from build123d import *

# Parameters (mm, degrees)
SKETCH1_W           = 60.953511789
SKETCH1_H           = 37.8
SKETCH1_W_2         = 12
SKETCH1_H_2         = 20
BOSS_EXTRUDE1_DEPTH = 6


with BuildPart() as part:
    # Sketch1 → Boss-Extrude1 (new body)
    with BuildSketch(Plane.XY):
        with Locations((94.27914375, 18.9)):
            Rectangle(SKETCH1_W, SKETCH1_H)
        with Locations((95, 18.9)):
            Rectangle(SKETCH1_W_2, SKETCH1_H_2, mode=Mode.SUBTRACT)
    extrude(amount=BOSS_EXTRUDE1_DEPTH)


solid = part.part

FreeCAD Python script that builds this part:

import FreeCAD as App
import Part
import Sketcher
from FreeCAD import Vector

doc = App.newDocument("Part")
body = doc.addObject("PartDesign::Body", "Body")

# Sketch on XY plane
sketch1 = doc.addObject("Sketcher::SketchObject", "Sketch")
body.addObject(sketch1)
sketch1.AttachmentSupport = (doc.XY_Plane, [""])
sketch1.MapMode = "FlatFace"
sketch1.addGeometry(Part.LineSegment(Vector(63.802388, 37.8, 0), Vector(63.802388, 0, 0)), False)
sketch1.addGeometry(Part.LineSegment(Vector(63.802388, 0, 0), Vector(124.7559, 0, 0)), False)
sketch1.addGeometry(Part.LineSegment(Vector(124.7559, 0, 0), Vector(124.7559, 37.8, 0)), False)
sketch1.addGeometry(Part.LineSegment(Vector(124.7559, 37.8, 0), Vector(63.802388, 37.8, 0)), False)
sketch1.addGeometry(Part.LineSegment(Vector(101, 8.9, 0), Vector(89, 8.9, 0)), False)
sketch1.addGeometry(Part.LineSegment(Vector(89, 8.9, 0), Vector(89, 28.9, 0)), False)
sketch1.addGeometry(Part.LineSegment(Vector(89, 28.9, 0), Vector(101, 28.9, 0)), False)
sketch1.addGeometry(Part.LineSegment(Vector(101, 28.9, 0), Vector(101, 8.9, 0)), False)
sketch1.addConstraint(Sketcher.Constraint("Coincident", 0, 2, 1, 1))
sketch1.addConstraint(Sketcher.Constraint("Coincident", 1, 2, 2, 1))
sketch1.addConstraint(Sketcher.Constraint("Coincident", 2, 2, 3, 1))
sketch1.addConstraint(Sketcher.Constraint("Coincident", 3, 2, 0, 1))
sketch1.addConstraint(Sketcher.Constraint("Coincident", 4, 2, 5, 1))
sketch1.addConstraint(Sketcher.Constraint("Coincident", 5, 2, 6, 1))
sketch1.addConstraint(Sketcher.Constraint("Coincident", 6, 2, 7, 1))
sketch1.addConstraint(Sketcher.Constraint("Coincident", 7, 2, 4, 1))
sketch1.addConstraint(Sketcher.Constraint("Vertical", 0))
sketch1.addConstraint(Sketcher.Constraint("Horizontal", 1))
sketch1.addConstraint(Sketcher.Constraint("Vertical", 2))
sketch1.addConstraint(Sketcher.Constraint("Horizontal", 3))
sketch1.addConstraint(Sketcher.Constraint("Horizontal", 4))
sketch1.addConstraint(Sketcher.Constraint("Vertical", 5))
sketch1.addConstraint(Sketcher.Constraint("Horizontal", 6))
sketch1.addConstraint(Sketcher.Constraint("Vertical", 7))
sketch1.addConstraint(Sketcher.Constraint("PointOnObject", 0, 2, -1))
sketch1.addConstraint(Sketcher.Constraint("DistanceX", 4, 2, 4, 1, 12.0))
sketch1.addConstraint(Sketcher.Constraint("DistanceY", 5, 1, 5, 2, 20.0))
sketch1.addConstraint(Sketcher.Constraint("DistanceY", 0, 2, 0, 1, 37.8))
sketch1.addConstraint(Sketcher.Constraint("DistanceX", -1, 1, 4, 2, 89.0))
sketch1.addConstraint(Sketcher.Constraint("DistanceY", -1, 1, 4, 2, 8.9))
sketch1.addConstraint(Sketcher.Constraint("DistanceX", 1, 1, 1, 2, 60.953512))
sketch1.addConstraint(Sketcher.Constraint("DistanceX", -1, 1, 1, 2, 124.7559))
pad1 = doc.addObject("PartDesign::Pad", "Pad")
body.addObject(pad1)
pad1.Profile = sketch1
pad1.Length = 6

doc.recompute()
